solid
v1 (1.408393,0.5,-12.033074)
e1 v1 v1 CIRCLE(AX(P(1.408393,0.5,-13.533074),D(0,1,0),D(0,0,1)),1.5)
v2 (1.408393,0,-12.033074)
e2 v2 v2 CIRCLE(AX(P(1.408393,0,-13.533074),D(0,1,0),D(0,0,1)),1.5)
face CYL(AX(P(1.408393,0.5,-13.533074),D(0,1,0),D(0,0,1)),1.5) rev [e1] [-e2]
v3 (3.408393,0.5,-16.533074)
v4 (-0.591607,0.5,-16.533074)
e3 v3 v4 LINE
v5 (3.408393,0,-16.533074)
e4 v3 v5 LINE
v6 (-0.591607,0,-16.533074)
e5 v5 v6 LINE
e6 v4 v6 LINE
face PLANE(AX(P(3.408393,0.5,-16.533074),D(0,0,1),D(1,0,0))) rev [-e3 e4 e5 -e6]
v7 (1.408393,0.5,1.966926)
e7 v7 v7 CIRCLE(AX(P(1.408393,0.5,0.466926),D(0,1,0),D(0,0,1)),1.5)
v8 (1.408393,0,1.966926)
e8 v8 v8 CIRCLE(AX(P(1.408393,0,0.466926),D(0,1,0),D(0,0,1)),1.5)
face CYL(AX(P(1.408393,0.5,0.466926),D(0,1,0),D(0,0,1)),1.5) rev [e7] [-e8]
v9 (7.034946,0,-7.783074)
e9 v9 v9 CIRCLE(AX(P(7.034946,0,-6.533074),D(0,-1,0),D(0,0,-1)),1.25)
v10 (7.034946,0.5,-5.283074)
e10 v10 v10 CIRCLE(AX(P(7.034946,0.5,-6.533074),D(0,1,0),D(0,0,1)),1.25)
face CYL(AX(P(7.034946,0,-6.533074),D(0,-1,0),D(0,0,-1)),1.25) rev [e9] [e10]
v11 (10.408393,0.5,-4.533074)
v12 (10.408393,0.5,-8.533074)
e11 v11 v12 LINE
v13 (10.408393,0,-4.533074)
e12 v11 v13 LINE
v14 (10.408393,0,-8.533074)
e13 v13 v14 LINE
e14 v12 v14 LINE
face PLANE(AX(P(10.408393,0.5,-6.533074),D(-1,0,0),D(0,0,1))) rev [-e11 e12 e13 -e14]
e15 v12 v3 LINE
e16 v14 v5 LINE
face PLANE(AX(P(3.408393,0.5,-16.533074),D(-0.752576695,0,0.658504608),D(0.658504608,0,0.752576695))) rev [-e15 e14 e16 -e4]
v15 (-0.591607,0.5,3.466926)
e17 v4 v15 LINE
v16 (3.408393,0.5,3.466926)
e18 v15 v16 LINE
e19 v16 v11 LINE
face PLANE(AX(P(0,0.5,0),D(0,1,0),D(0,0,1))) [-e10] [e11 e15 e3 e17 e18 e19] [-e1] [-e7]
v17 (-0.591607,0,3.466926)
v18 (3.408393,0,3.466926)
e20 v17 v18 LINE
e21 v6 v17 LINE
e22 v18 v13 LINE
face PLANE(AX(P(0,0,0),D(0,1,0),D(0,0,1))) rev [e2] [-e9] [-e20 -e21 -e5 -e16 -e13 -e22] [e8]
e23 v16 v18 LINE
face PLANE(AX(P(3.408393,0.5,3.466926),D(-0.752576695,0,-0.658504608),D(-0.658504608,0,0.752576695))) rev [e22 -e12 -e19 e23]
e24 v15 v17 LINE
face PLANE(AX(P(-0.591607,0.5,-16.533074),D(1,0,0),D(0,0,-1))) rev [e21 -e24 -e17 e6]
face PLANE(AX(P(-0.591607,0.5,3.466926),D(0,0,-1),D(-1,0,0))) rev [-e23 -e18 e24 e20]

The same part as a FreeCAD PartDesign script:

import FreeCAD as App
import Part
import Sketcher
from FreeCAD import Vector
Q = App.Units.Quantity

doc = App.newDocument("Part")
body = doc.addObject("PartDesign::Body", "Body")

# Sketch on XZ plane
sketch1 = doc.addObject("Sketcher::SketchObject", "Sketch")
body.addObject(sketch1)
sketch1.AttachmentSupport = (doc.XZ_Plane, [""])
sketch1.MapMode = "FlatFace"
sketch1.addGeometry([
    Part.LineSegment(Vector(-0.591607, -16.533074, 0), Vector(-0.591607, 3.466926, 0)),  # 0
    Part.LineSegment(Vector(-0.591607, 3.466926, 0), Vector(3.408393, 3.466926, 0)),  # 1
    Part.LineSegment(Vector(3.408393, 3.466926, 0), Vector(10.408393, -4.533074, 0)),  # 2
    Part.LineSegment(Vector(10.408393, -4.533074, 0), Vector(10.408393, -8.533074, 0)),  # 3
    Part.LineSegment(Vector(10.408393, -8.533074, 0), Vector(3.408393, -16.533074, 0)),  # 4
    Part.LineSegment(Vector(3.408393, -16.533074, 0), Vector(-0.591607, -16.533074, 0)),  # 5
], False)
sketch1.addConstraint([
    Sketcher.Constraint("Coincident", 0, 2, 1, 1),
    Sketcher.Constraint("Coincident", 1, 2, 2, 1),
    Sketcher.Constraint("Coincident", 2, 2, 3, 1),
    Sketcher.Constraint("Coincident", 3, 2, 4, 1),
    Sketcher.Constraint("Coincident", 4, 2, 5, 1),
    Sketcher.Constraint("Coincident", 5, 2, 0, 1),
    Sketcher.Constraint("Vertical", 0),
    Sketcher.Constraint("Horizontal", 1),
    Sketcher.Constraint("Vertical", 3),
    Sketcher.Constraint("Horizontal", 5),
    Sketcher.Constraint("Vertical", 1, 2, 4, 2),
    Sketcher.Constraint("Equal", 5, 3),
    Sketcher.Constraint("Equal", 2, 4),
    Sketcher.Constraint("DistanceX", 1, 1, 1, 2, Q("4 mm")),
    Sketcher.Constraint("DistanceY", 0, 1, 0, 2, Q("20 mm")),
    Sketcher.Constraint("DistanceX", 1, 2, 2, 2, Q("7 mm")),
    Sketcher.Constraint("DistanceX", 0, 2, -1, 1, Q("0.591607 mm")),
    Sketcher.Constraint("DistanceY", -1, 1, 0, 2, Q("3.466926 mm")),
])
pad1 = doc.addObject("PartDesign::Pad", "Pad")
body.addObject(pad1)
pad1.Profile = sketch1
pad1.Length = 0.5
pad1.Reversed = True

# Sketch on XZ plane
sketch2 = doc.addObject("Sketcher::SketchObject", "Sketch001")
body.addObject(sketch2)
sketch2.AttachmentSupport = (doc.XZ_Plane, [""])
sketch2.MapMode = "FlatFace"
sketch2.AttachmentOffset = App.Placement(Vector(0, 0, -0.5), App.Rotation())
sketch2.addGeometry([
    Part.Circle(Vector(1.408393, -13.533074, 0), Vector(0, 0, 1), 1.5),
    Part.Circle(Vector(1.408393, 0.466926, 0), Vector(0, 0, 1), 1.5),
], False)
sketch2.addConstraint([
    Sketcher.Constraint("Equal", 0, 1),
    Sketcher.Constraint("Vertical", 0, 3, 1, 3),
    Sketcher.Constraint("Diameter", 0, Q("3 mm")),
    Sketcher.Constraint("DistanceY", 0, 3, 1, 3, Q("14 mm")),
    Sketcher.Constraint("DistanceX", -1, 1, 0, 3, Q("1.408393 mm")),
    Sketcher.Constraint("DistanceY", 0, 3, -1, 1, Q("13.533074 mm")),
])
doc.recompute()
hole = doc.addObject("PartDesign::Hole", "Hole")
body.addObject(hole)
hole.Profile = sketch2
hole.ThreadType = "None"
hole.Diameter = 3
hole.DepthType = "Dimension"
hole.Depth = 12.75
hole.DrillPoint = "Angled"
hole.DrillPointAngle = 118
hole.Reversed = True

# Sketch on XZ plane
sketch3 = doc.addObject("Sketcher::SketchObject", "Sketch002")
body.addObject(sketch3)
sketch3.AttachmentSupport = (doc.XZ_Plane, [""])
sketch3.MapMode = "FlatFace"
sketch3.addGeometry(Part.Circle(Vector(7.034946, -6.533074, 0), Vector(0, 0, 1), 1.25), False)
sketch3.addConstraint([
    Sketcher.Constraint("Diameter", 0, Q("2.5 mm")),
    Sketcher.Constraint("DistanceX", -1, 1, 0, 3, Q("7.034946 mm")),
    Sketcher.Constraint("DistanceY", 0, 3, -1, 1, Q("6.533074 mm")),
])
doc.recompute()
hole2 = doc.addObject("PartDesign::Hole", "Hole001")
body.addObject(hole2)
hole2.Profile = sketch3
hole2.ThreadType = "None"
hole2.Diameter = 2.5
hole2.DepthType = "Dimension"
hole2.Depth = 7.5
hole2.DrillPoint = "Angled"
hole2.DrillPointAngle = 118

doc.recompute()
